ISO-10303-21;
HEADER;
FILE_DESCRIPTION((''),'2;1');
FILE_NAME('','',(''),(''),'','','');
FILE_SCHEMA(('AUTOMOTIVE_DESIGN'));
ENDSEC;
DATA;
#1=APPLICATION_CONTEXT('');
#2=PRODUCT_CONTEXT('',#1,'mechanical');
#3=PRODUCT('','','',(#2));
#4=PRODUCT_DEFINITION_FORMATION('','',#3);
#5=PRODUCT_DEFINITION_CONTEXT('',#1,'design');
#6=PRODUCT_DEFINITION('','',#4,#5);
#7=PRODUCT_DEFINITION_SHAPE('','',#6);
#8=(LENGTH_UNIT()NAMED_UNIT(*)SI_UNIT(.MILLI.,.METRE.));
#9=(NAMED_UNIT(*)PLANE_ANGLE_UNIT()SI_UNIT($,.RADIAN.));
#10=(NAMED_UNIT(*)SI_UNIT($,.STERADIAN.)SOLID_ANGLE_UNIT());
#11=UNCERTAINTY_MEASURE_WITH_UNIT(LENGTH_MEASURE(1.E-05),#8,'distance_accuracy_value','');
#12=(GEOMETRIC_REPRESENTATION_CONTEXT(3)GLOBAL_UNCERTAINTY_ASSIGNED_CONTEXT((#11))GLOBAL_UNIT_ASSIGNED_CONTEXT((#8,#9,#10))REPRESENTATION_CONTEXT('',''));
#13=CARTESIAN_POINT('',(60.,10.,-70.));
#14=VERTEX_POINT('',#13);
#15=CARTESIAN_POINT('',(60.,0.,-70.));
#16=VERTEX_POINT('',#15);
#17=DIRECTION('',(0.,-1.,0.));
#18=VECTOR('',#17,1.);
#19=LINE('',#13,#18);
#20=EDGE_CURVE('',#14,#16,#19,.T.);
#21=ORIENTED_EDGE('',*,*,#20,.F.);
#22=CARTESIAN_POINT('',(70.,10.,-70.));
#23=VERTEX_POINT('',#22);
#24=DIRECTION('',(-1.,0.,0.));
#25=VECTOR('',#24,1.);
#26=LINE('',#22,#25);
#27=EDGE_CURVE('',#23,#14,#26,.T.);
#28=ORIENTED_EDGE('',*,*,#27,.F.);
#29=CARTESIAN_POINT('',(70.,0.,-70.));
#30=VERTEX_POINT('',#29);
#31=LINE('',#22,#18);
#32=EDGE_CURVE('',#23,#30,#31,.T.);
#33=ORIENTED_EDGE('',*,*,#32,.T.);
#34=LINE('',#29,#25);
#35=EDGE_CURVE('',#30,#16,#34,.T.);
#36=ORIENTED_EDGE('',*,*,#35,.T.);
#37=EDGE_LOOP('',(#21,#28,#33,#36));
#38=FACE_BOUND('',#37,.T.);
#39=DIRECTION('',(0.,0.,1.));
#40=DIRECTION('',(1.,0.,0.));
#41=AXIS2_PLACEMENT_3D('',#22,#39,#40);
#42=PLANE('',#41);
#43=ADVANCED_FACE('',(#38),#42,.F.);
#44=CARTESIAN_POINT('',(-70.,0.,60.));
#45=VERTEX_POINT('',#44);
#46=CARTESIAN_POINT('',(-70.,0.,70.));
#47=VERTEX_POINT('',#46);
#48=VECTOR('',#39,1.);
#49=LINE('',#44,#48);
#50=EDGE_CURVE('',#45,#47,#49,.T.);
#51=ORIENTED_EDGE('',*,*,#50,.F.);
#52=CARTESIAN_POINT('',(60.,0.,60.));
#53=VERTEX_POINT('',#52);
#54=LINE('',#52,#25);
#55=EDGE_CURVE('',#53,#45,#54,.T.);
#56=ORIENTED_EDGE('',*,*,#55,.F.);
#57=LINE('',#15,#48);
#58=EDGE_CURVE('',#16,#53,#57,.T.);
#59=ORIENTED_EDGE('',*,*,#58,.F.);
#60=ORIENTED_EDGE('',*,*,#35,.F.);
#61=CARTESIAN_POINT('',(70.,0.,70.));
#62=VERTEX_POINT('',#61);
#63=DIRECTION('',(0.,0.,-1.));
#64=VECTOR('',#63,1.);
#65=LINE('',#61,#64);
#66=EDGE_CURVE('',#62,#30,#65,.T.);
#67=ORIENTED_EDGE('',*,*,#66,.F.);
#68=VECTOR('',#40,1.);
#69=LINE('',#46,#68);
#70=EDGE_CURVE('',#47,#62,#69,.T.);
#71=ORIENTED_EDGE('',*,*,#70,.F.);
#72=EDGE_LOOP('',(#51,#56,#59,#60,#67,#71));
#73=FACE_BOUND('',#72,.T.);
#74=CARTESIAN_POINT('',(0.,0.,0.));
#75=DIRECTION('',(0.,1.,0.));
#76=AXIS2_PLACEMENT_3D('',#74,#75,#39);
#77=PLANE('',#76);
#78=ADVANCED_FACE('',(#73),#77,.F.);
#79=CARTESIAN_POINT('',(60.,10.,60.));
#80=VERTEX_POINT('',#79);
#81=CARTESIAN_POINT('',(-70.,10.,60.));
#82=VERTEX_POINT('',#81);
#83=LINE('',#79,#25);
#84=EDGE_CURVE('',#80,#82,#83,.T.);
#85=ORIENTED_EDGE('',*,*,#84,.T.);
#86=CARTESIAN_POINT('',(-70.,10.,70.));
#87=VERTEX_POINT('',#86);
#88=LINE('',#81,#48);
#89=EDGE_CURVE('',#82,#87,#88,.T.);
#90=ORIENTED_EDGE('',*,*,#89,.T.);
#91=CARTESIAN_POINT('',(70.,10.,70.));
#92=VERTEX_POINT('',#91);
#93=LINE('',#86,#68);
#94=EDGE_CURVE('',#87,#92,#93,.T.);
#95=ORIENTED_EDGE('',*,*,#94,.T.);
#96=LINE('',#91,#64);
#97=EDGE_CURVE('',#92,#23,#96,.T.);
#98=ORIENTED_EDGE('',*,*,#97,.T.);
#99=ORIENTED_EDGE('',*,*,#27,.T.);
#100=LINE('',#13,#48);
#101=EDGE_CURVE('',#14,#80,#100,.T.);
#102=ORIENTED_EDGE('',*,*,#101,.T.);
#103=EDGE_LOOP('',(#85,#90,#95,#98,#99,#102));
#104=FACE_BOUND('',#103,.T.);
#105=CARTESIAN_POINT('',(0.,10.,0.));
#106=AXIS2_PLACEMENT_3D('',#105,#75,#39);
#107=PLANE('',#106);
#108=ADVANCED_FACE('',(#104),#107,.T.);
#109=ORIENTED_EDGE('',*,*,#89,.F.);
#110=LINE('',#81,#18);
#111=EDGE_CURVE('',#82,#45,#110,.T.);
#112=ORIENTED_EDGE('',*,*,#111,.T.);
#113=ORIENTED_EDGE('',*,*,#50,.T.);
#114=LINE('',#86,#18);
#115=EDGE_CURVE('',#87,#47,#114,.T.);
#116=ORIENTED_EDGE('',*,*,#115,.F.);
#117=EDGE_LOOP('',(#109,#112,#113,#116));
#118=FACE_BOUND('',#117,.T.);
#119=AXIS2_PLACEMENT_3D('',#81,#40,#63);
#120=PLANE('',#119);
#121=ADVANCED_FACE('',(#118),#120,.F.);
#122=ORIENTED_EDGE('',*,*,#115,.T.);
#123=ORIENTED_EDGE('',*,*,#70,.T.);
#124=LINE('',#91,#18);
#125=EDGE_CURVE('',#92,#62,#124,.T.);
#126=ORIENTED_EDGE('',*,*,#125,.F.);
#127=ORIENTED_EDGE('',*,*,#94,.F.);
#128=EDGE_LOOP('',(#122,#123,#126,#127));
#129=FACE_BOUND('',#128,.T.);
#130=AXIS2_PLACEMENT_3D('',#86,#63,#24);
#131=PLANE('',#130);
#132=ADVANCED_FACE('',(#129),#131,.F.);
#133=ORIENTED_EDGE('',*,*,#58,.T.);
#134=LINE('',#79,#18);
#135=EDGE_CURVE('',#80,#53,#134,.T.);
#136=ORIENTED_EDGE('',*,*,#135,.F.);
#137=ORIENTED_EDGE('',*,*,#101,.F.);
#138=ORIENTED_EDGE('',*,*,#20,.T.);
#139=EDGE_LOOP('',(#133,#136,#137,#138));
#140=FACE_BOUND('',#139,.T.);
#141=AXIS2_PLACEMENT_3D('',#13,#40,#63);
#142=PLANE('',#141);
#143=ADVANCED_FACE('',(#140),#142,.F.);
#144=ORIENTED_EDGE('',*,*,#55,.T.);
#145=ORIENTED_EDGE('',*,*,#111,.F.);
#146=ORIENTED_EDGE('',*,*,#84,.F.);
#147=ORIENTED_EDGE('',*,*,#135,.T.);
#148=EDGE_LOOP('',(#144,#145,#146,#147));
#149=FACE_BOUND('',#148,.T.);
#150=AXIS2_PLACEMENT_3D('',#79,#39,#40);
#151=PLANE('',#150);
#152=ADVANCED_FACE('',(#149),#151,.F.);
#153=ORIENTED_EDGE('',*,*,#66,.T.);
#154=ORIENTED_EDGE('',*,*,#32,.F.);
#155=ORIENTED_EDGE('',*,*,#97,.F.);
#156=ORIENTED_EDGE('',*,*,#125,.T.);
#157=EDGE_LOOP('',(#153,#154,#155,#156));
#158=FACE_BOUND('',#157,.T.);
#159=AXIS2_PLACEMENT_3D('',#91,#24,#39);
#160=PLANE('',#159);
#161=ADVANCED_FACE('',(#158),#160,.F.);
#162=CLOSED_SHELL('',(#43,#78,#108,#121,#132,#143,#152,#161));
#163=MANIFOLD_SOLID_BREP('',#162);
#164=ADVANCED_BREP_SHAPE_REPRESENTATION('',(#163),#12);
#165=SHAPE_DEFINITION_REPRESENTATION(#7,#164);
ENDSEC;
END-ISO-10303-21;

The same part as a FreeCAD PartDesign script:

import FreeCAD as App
import Part
import Sketcher
from FreeCAD import Vector
Q = App.Units.Quantity

doc = App.newDocument("Part")
body = doc.addObject("PartDesign::Body", "Body")

sketch1 = body.newObject("Sketcher::SketchObject", "Sketch")
sketch1.AttachmentSupport = (doc.getObject("XZ_Plane"), [""])
sketch1.MapMode = "FlatFace"
sketch1.addGeometry([
    Part.LineSegment(Vector(-70, 70, 0), Vector(70, 70, 0)),
    Part.LineSegment(Vector(70, 70, 0), Vector(70, -70, 0)),
    Part.LineSegment(Vector(70, -70, 0), Vector(60, -70, 0)),
    Part.LineSegment(Vector(60, -70, 0), Vector(60, 60, 0)),
    Part.LineSegment(Vector(60, 60, 0), Vector(-70, 60, 0)),
    Part.LineSegment(Vector(-70, 60, 0), Vector(-70, 70, 0)),
], False)
sketch1.addConstraint([
    Sketcher.Constraint("Coincident", 0, 2, 1, 1),
    Sketcher.Constraint("Coincident", 1, 2, 2, 1),
    Sketcher.Constraint("Coincident", 2, 2, 3, 1),
    Sketcher.Constraint("Coincident", 3, 2, 4, 1),
    Sketcher.Constraint("Coincident", 4, 2, 5, 1),
    Sketcher.Constraint("Coincident", 5, 2, 0, 1),
    Sketcher.Constraint("Horizontal", 0),
    Sketcher.Constraint("Vertical", 1),
    Sketcher.Constraint("Horizontal", 2),
    Sketcher.Constraint("Vertical", 3),
    Sketcher.Constraint("Horizontal", 4),
    Sketcher.Constraint("Vertical", 5),
    Sketcher.Constraint("Symmetric", 1, 2, 5, 2, -1, 1),
    Sketcher.Constraint("Equal", 0, 1),
    Sketcher.Constraint("Equal", 4, 3),
    Sketcher.Constraint("DistanceX", 0, 1, 0, 2, Q("140 mm")),
    Sketcher.Constraint("DistanceX", 2, 2, 2, 1, Q("10 mm")),
])
pad1 = body.newObject("PartDesign::Pad", "Pad")
pad1.Profile = sketch1
pad1.Length = 10
pad1.Reversed = True

doc.recompute()
